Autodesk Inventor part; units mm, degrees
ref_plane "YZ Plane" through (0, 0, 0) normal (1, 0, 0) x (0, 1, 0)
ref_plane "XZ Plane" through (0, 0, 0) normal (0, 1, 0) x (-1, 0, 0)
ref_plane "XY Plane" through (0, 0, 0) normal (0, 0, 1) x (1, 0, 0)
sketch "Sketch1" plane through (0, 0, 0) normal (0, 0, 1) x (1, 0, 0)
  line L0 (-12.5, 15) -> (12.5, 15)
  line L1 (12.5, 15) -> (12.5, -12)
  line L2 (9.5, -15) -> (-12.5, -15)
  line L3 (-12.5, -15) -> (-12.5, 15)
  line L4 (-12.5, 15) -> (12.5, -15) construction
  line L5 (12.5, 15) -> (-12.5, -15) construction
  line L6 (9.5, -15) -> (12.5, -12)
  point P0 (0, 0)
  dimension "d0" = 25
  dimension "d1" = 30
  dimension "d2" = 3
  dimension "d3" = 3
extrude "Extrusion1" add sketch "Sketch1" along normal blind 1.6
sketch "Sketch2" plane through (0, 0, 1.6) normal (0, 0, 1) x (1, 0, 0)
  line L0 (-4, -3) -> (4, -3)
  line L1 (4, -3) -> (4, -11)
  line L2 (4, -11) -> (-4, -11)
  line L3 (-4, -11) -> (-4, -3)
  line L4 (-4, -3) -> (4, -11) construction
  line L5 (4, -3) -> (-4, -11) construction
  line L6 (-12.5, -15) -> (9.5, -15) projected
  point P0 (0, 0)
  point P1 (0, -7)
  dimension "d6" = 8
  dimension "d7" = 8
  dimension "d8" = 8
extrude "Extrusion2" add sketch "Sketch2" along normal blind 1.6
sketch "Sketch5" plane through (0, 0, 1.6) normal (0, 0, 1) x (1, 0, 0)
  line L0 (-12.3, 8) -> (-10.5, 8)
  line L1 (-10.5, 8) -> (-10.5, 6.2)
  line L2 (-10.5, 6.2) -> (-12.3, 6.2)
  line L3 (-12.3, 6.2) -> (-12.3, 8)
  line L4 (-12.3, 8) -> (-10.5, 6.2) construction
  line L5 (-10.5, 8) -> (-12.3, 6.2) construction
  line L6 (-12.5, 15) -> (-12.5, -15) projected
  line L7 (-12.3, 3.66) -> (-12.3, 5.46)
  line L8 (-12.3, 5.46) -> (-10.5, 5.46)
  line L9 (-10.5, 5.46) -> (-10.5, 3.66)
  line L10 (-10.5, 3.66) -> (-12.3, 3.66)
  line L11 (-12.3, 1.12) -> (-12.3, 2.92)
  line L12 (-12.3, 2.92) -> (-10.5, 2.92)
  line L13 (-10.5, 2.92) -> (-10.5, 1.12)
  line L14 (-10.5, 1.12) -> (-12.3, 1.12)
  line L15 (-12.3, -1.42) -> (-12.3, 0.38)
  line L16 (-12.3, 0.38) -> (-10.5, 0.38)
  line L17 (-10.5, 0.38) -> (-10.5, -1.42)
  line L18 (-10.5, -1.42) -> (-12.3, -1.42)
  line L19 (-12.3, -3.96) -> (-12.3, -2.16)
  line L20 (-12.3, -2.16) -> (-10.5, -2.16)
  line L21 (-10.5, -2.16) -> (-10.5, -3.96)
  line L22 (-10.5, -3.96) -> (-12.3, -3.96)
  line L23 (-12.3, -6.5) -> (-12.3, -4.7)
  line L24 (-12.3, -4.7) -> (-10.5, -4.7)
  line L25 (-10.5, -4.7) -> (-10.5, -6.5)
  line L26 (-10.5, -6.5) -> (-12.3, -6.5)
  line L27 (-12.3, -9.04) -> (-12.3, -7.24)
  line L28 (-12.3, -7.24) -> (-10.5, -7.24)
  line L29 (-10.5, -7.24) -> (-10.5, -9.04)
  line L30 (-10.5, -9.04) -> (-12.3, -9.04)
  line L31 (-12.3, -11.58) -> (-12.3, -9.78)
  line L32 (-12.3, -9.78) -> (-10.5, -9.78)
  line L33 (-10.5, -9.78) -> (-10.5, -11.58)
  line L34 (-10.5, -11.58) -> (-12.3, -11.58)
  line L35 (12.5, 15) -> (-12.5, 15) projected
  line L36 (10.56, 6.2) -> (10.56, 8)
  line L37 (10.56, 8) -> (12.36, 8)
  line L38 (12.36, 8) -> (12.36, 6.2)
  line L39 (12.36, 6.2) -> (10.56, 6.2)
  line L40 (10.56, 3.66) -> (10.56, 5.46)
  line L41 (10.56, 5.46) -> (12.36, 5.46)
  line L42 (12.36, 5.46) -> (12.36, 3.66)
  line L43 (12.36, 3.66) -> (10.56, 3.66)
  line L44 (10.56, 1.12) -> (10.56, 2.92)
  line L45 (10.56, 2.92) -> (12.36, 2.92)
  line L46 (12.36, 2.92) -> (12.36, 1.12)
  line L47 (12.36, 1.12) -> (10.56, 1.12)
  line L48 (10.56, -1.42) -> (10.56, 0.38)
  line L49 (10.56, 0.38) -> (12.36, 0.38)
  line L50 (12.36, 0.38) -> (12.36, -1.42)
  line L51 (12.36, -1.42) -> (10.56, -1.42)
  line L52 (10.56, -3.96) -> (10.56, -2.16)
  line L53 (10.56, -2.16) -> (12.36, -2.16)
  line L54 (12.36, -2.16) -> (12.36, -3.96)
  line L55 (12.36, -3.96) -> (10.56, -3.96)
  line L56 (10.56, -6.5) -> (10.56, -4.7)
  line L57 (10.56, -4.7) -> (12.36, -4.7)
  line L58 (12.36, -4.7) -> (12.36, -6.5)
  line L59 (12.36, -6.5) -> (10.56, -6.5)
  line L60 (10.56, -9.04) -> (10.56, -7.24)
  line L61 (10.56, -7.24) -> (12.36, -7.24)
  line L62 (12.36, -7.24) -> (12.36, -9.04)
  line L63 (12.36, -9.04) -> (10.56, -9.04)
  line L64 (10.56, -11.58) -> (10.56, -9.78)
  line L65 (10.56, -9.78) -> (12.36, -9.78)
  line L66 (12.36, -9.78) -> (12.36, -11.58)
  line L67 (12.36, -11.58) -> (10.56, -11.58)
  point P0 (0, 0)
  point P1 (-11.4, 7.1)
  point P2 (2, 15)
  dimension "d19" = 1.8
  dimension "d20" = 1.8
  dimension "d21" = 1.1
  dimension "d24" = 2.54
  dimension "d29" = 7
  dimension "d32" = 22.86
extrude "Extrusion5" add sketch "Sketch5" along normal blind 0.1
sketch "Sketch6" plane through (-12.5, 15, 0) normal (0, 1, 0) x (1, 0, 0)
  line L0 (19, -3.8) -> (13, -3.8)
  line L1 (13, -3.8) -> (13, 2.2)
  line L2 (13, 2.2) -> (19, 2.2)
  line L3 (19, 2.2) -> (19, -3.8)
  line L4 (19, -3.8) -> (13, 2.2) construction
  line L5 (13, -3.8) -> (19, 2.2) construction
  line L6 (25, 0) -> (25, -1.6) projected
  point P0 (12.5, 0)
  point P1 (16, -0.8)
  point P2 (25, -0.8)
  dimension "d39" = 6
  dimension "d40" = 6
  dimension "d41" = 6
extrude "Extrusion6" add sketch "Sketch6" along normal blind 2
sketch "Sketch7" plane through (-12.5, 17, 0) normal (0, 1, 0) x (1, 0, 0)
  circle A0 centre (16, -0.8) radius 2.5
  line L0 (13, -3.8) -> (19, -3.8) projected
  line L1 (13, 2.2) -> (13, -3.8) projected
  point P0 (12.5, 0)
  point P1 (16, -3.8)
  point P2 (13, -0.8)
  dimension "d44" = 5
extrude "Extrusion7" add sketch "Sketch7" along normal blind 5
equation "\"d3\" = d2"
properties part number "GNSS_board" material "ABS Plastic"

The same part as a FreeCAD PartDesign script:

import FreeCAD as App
import Part
import Sketcher

V = App.Vector
Q = App.Units.Quantity


def add_polygon(sketch, points):
    """Adds a closed chain of lines whose ends are joined by coincident constraints."""
    first, n = sketch.GeometryCount, len(points)
    for a, b in zip(points, points[1:] + points[:1]):
        sketch.addGeometry(Part.LineSegment(App.Vector(*a, 0), App.Vector(*b, 0)), False)
    for i in range(n):
        sketch.addConstraint(Sketcher.Constraint("Coincident", first + i, 2, first + (i + 1) % n, 1))

doc = App.newDocument("Part")
body = doc.addObject("PartDesign::Body", "Body")

# Sketch on XY plane
sketch1 = body.newObject("Sketcher::SketchObject", "Sketch")
sketch1.AttachmentSupport = (doc.getObject("XY_Plane"), [""])
sketch1.MapMode = "FlatFace"
add_polygon(sketch1, [(12.5, 15), (-12.5, 15), (-12.5, -15), (9.5, -15), (12.5, -12)])  # lines 0-4
sketch1.addConstraint(Sketcher.Constraint("Horizontal", 0))
sketch1.addConstraint(Sketcher.Constraint("Vertical", 1))
sketch1.addConstraint(Sketcher.Constraint("Horizontal", 2))
sketch1.addConstraint(Sketcher.Constraint("Vertical", 4))
sketch1.addConstraint(Sketcher.Constraint("Symmetric", 1, 2, 4, 2, -1, 1))
sketch1.addConstraint(Sketcher.Constraint("DistanceX", 0, 2, 0, 1, Q("25 mm")))
sketch1.addConstraint(Sketcher.Constraint("DistanceY", 1, 2, 1, 1, Q("30 mm")))
sketch1.addConstraint(Sketcher.Constraint("DistanceX", 2, 2, 3, 2, Q("3 mm")))
sketch1.addConstraint(Sketcher.Constraint("DistanceY", 2, 2, 3, 2, Q("3 mm")))
pad1 = body.newObject("PartDesign::Pad", "Pad")
pad1.Profile = sketch1
pad1.Length = 1.6

# Sketch on XY plane
sketch2 = body.newObject("Sketcher::SketchObject", "Sketch001")
sketch2.AttachmentSupport = (doc.getObject("XY_Plane"), [""])
sketch2.MapMode = "FlatFace"
sketch2.AttachmentOffset = App.Placement(V(0, 0, 1.6), App.Rotation())
add_polygon(sketch2, [(4, -3), (-4, -3), (-4, -11), (4, -11)])  # lines 0-3
sketch2.addConstraint(Sketcher.Constraint("Horizontal", 0))
sketch2.addConstraint(Sketcher.Constraint("Vertical", 1))
sketch2.addConstraint(Sketcher.Constraint("Horizontal", 2))
sketch2.addConstraint(Sketcher.Constraint("Vertical", 3))
sketch2.addConstraint(Sketcher.Constraint("Equal", 2, 1))
sketch2.addConstraint(Sketcher.Constraint("DistanceX", 0, 2, 0, 1, Q("8 mm")))
sketch2.addConstraint(Sketcher.Constraint("DistanceX", 0, 2, -1, 1, Q("4 mm")))
sketch2.addConstraint(Sketcher.Constraint("DistanceY", 0, 2, -1, 1, Q("3 mm")))
pad2 = body.newObject("PartDesign::Pad", "Pad001")
pad2.Profile = sketch2
pad2.Length = 1.6

# Sketch on XY plane
sketch3 = body.newObject("Sketcher::SketchObject", "Sketch002")
sketch3.AttachmentSupport = (doc.getObject("XY_Plane"), [""])
sketch3.MapMode = "FlatFace"
sketch3.AttachmentOffset = App.Placement(V(0, 0, 1.6), App.Rotation())
add_polygon(sketch3, [(-10.5, 8), (-12.3, 8), (-12.3, 6.2), (-10.5, 6.2)])  # lines 0-3
add_polygon(sketch3, [(-12.3, 5.5), (-12.3, 3.7), (-10.5, 3.7), (-10.5, 5.5)])  # lines 4-7
add_polygon(sketch3, [(-12.3, 2.9), (-12.3, 1.1), (-10.5, 1.1), (-10.5, 2.9)])  # lines 8-11
add_polygon(sketch3, [(-12.3, 0.4), (-12.3, -1.4), (-10.5, -1.4), (-10.5, 0.4)])  # lines 12-15
add_polygon(sketch3, [(-12.3, -2.2), (-12.3, -4), (-10.5, -4), (-10.5, -2.2)])  # lines 16-19
add_polygon(sketch3, [(-12.3, -4.7), (-12.3, -6.5), (-10.5, -6.5), (-10.5, -4.7)])  # lines 20-23
add_polygon(sketch3, [(-12.3, -7.2), (-12.3, -9), (-10.5, -9), (-10.5, -7.2)])  # lines 24-27
add_polygon(sketch3, [(-12.3, -9.8), (-12.3, -11.6), (-10.5, -11.6), (-10.5, -9.8)])  # lines 28-31
add_polygon(sketch3, [(10.6, 8), (10.6, 6.2), (12.4, 6.2), (12.4, 8)])  # lines 32-35
add_polygon(sketch3, [(10.6, 5.5), (10.6, 3.7), (12.4, 3.7), (12.4, 5.5)])  # lines 36-39
add_polygon(sketch3, [(10.6, 2.9), (10.6, 1.1), (12.4, 1.1), (12.4, 2.9)])  # lines 40-43
add_polygon(sketch3, [(10.6, 0.4), (10.6, -1.4), (12.4, -1.4), (12.4, 0.4)])  # lines 44-47
add_polygon(sketch3, [(10.6, -2.2), (10.6, -4), (12.4, -4), (12.4, -2.2)])  # lines 48-51
add_polygon(sketch3, [(10.6, -4.7), (10.6, -6.5), (12.4, -6.5), (12.4, -4.7)])  # lines 52-55
add_polygon(sketch3, [(10.6, -7.2), (10.6, -9), (12.4, -9), (12.4, -7.2)])  # lines 56-59
add_polygon(sketch3, [(10.6, -9.8), (10.6, -11.6), (12.4, -11.6), (12.4, -9.8)])  # lines 60-63
sketch3.addConstraint(Sketcher.Constraint("Horizontal", 0))
sketch3.addConstraint(Sketcher.Constraint("Vertical", 1))
sketch3.addConstraint(Sketcher.Constraint("Horizontal", 2))
sketch3.addConstraint(Sketcher.Constraint("Vertical", 3))
sketch3.addConstraint(Sketcher.Constraint("Vertical", 4))
sketch3.addConstraint(Sketcher.Constraint("Horizontal", 5))
sketch3.addConstraint(Sketcher.Constraint("Vertical", 6))
sketch3.addConstraint(Sketcher.Constraint("Horizontal", 7))
sketch3.addConstraint(Sketcher.Constraint("Vertical", 8))
sketch3.addConstraint(Sketcher.Constraint("Horizontal", 9))
sketch3.addConstraint(Sketcher.Constraint("Vertical", 10))
sketch3.addConstraint(Sketcher.Constraint("Horizontal", 11))
sketch3.addConstraint(Sketcher.Constraint("Vertical", 12))
sketch3.addConstraint(Sketcher.Constraint("Horizontal", 13))
sketch3.addConstraint(Sketcher.Constraint("Vertical", 14))
sketch3.addConstraint(Sketcher.Constraint("Horizontal", 15))
sketch3.addConstraint(Sketcher.Constraint("Vertical", 16))
sketch3.addConstraint(Sketcher.Constraint("Horizontal", 17))
sketch3.addConstraint(Sketcher.Constraint("Vertical", 18))
sketch3.addConstraint(Sketcher.Constraint("Horizontal", 19))
sketch3.addConstraint(Sketcher.Constraint("Vertical", 20))
sketch3.addConstraint(Sketcher.Constraint("Horizontal", 21))
sketch3.addConstraint(Sketcher.Constraint("Vertical", 22))
sketch3.addConstraint(Sketcher.Constraint("Horizontal", 23))
sketch3.addConstraint(Sketcher.Constraint("Vertical", 24))
sketch3.addConstraint(Sketcher.Constraint("Horizontal", 25))
sketch3.addConstraint(Sketcher.Constraint("Vertical", 26))
sketch3.addConstraint(Sketcher.Constraint("Horizontal", 27))
sketch3.addConstraint(Sketcher.Constraint("Vertical", 28))
sketch3.addConstraint(Sketcher.Constraint("Horizontal", 29))
sketch3.addConstraint(Sketcher.Constraint("Vertical", 30))
sketch3.addConstraint(Sketcher.Constraint("Horizontal", 31))
sketch3.addConstraint(Sketcher.Constraint("Vertical", 32))
sketch3.addConstraint(Sketcher.Constraint("Horizontal", 33))
sketch3.addConstraint(Sketcher.Constraint("Vertical", 34))
sketch3.addConstraint(Sketcher.Constraint("Horizontal", 35))
sketch3.addConstraint(Sketcher.Constraint("Vertical", 36))
sketch3.addConstraint(Sketcher.Constraint("Horizontal", 37))
sketch3.addConstraint(Sketcher.Constraint("Vertical", 38))
sketch3.addConstraint(Sketcher.Constraint("Horizontal", 39))
sketch3.addConstraint(Sketcher.Constraint("Vertical", 40))
sketch3.addConstraint(Sketcher.Constraint("Horizontal", 41))
sketch3.addConstraint(Sketcher.Constraint("Vertical", 42))
sketch3.addConstraint(Sketcher.Constraint("Horizontal", 43))
sketch3.addConstraint(Sketcher.Constraint("Vertical", 44))
sketch3.addConstraint(Sketcher.Constraint("Horizontal", 45))
sketch3.addConstraint(Sketcher.Constraint("Vertical", 46))
sketch3.addConstraint(Sketcher.Constraint("Horizontal", 47))
sketch3.addConstraint(Sketcher.Constraint("Vertical", 48))
sketch3.addConstraint(Sketcher.Constraint("Horizontal", 49))
sketch3.addConstraint(Sketcher.Constraint("Vertical", 50))
sketch3.addConstraint(Sketcher.Constraint("Horizontal", 51))
sketch3.addConstraint(Sketcher.Constraint("Vertical", 52))
sketch3.addConstraint(Sketcher.Constraint("Horizontal", 53))
sketch3.addConstraint(Sketcher.Constraint("Vertical", 54))
sketch3.addConstraint(Sketcher.Constraint("Horizontal", 55))
sketch3.addConstraint(Sketcher.Constraint("Vertical", 56))
sketch3.addConstraint(Sketcher.Constraint("Horizontal", 57))
sketch3.addConstraint(Sketcher.Constraint("Vertical", 58))
sketch3.addConstraint(Sketcher.Constraint("Horizontal", 59))
sketch3.addConstraint(Sketcher.Constraint("Vertical", 60))
sketch3.addConstraint(Sketcher.Constraint("Horizontal", 61))
sketch3.addConstraint(Sketcher.Constraint("Vertical", 62))
sketch3.addConstraint(Sketcher.Constraint("Horizontal", 63))
sketch3.addConstraint(Sketcher.Constraint("Horizontal", 2, 2, 32, 2))
sketch3.addConstraint(Sketcher.Constraint("Horizontal", 3, 2, 34, 2))
sketch3.addConstraint(Sketcher.Constraint("Horizontal", 5, 2, 36, 2))
sketch3.addConstraint(Sketcher.Constraint("Horizontal", 7, 2, 38, 2))
sketch3.addConstraint(Sketcher.Constraint("Horizontal", 9, 2, 40, 2))
sketch3.addConstraint(Sketcher.Constraint("Horizontal", 11, 2, 42, 2))
sketch3.addConstraint(Sketcher.Constraint("Horizontal", 13, 2, 44, 2))
sketch3.addConstraint(Sketcher.Constraint("Horizontal", 15, 2, 46, 2))
sketch3.addConstraint(Sketcher.Constraint("Horizontal", 17, 2, 48, 2))
sketch3.addConstraint(Sketcher.Constraint("Horizontal", 19, 2, 50, 2))
sketch3.addConstraint(Sketcher.Constraint("Horizontal", 21, 2, 52, 2))
sketch3.addConstraint(Sketcher.Constraint("Horizontal", 23, 2, 54, 2))
sketch3.addConstraint(Sketcher.Constraint("Horizontal", 25, 2, 56, 2))
sketch3.addConstraint(Sketcher.Constraint("Horizontal", 27, 2, 58, 2))
sketch3.addConstraint(Sketcher.Constraint("Horizontal", 29, 2, 60, 2))
sketch3.addConstraint(Sketcher.Constraint("Horizontal", 31, 2, 62, 2))
sketch3.addConstraint(Sketcher.Constraint("Vertical", 1, 2, 4, 2))
sketch3.addConstraint(Sketcher.Constraint("Vertical", 3, 2, 5, 2))
sketch3.addConstraint(Sketcher.Constraint("Vertical", 7, 2, 8, 2))
sketch3.addConstraint(Sketcher.Constraint("Vertical", 6, 2, 9, 2))
sketch3.addConstraint(Sketcher.Constraint("Vertical", 11, 2, 12, 2))
sketch3.addConstraint(Sketcher.Constraint("Vertical", 10, 2, 13, 2))
sketch3.addConstraint(Sketcher.Constraint("Vertical", 15, 2, 16, 2))
sketch3.addConstraint(Sketcher.Constraint("Vertical", 14, 2, 17, 2))
sketch3.addConstraint(Sketcher.Constraint("Vertical", 19, 2, 20, 2))
sketch3.addConstraint(Sketcher.Constraint("Vertical", 18, 2, 21, 2))
sketch3.addConstraint(Sketcher.Constraint("Vertical", 23, 2, 24, 2))
sketch3.addConstraint(Sketcher.Constraint("Vertical", 22, 2, 25, 2))
sketch3.addConstraint(Sketcher.Constraint("Vertical", 27, 2, 28, 2))
sketch3.addConstraint(Sketcher.Constraint("Vertical", 26, 2, 29, 2))
sketch3.addConstraint(Sketcher.Constraint("Vertical", 35, 2, 36, 2))
sketch3.addConstraint(Sketcher.Constraint("Vertical", 34, 2, 37, 2))
sketch3.addConstraint(Sketcher.Constraint("Vertical", 39, 2, 40, 2))
sketch3.addConstraint(Sketcher.Constraint("Vertical", 38, 2, 41, 2))
sketch3.addConstraint(Sketcher.Constraint("Vertical", 43, 2, 44, 2))
sketch3.addConstraint(Sketcher.Constraint("Vertical", 42, 2, 45, 2))
sketch3.addConstraint(Sketcher.Constraint("Vertical", 47, 2, 48, 2))
sketch3.addConstraint(Sketcher.Constraint("Vertical", 46, 2, 49, 2))
sketch3.addConstraint(Sketcher.Constraint("Vertical", 51, 2, 52, 2))
sketch3.addConstraint(Sketcher.Constraint("Vertical", 50, 2, 53, 2))
sketch3.addConstraint(Sketcher.Constraint("Vertical", 55, 2, 56, 2))
sketch3.addConstraint(Sketcher.Constraint("Vertical", 54, 2, 57, 2))
sketch3.addConstraint(Sketcher.Constraint("Vertical", 59, 2, 60, 2))
sketch3.addConstraint(Sketcher.Constraint("Vertical", 58, 2, 61, 2))
sketch3.addConstraint(Sketcher.Constraint("Equal", 31, 33))
sketch3.addConstraint(Sketcher.Constraint("Equal", 63, 1))
sketch3.addConstraint(Sketcher.Constraint("Equal", 3, 4))
sketch3.addConstraint(Sketcher.Constraint("Equal", 6, 8))
sketch3.addConstraint(Sketcher.Constraint("Equal", 10, 12))
sketch3.addConstraint(Sketcher.Constraint("Equal", 14, 16))
sketch3.addConstraint(Sketcher.Constraint("Equal", 18, 20))
sketch3.addConstraint(Sketcher.Constraint("Equal", 22, 24))
sketch3.addConstraint(Sketcher.Constraint("Equal", 26, 28))
sketch3.addConstraint(Sketcher.Constraint("DistanceX", 0, 2, 0, 1, Q("1.8 mm")))
sketch3.addConstraint(Sketcher.Constraint("DistanceY", -1, 1, 0, 2, Q("8 mm")))
sketch3.addConstraint(Sketcher.Constraint("DistanceX", 0, 2, -1, 1, Q("12.3 mm")))
sketch3.addConstraint(Sketcher.Constraint("DistanceY", 20, 2, -1, 1, Q("6.5 mm")))
sketch3.addConstraint(Sketcher.Constraint("DistanceY", -1, 1, 4, 2, Q("3.66 mm")))
sketch3.addConstraint(Sketcher.Constraint("DistanceY", -1, 1, 8, 2, Q("1.12 mm")))
sketch3.addConstraint(Sketcher.Constraint("DistanceY", 12, 2, -1, 1, Q("1.42 mm")))
sketch3.addConstraint(Sketcher.Constraint("DistanceY", 16, 2, -1, 1, Q("3.96 mm")))
sketch3.addConstraint(Sketcher.Constraint("DistanceY", 24, 2, -1, 1, Q("9.04 mm")))
sketch3.addConstraint(Sketcher.Constraint("DistanceY", 28, 2, -1, 1, Q("11.58 mm")))
sketch3.addConstraint(Sketcher.Constraint("DistanceX", -1, 1, 32, 2, Q("10.56 mm")))
pad3 = body.newObject("PartDesign::Pad", "Pad002")
pad3.Profile = sketch3
pad3.Length = 0.1

# Sketch on XZ plane
sketch4 = body.newObject("Sketcher::SketchObject", "Sketch003")
sketch4.AttachmentSupport = (doc.getObject("XZ_Plane"), [""])
sketch4.MapMode = "FlatFace"
sketch4.AttachmentOffset = App.Placement(V(0, 0, -15), App.Rotation())
add_polygon(sketch4, [(0, 4), (6, 4), (6, -2), (0, -2)])  # lines 0-3
sketch4.addConstraint(Sketcher.Constraint("Horizontal", 0))
sketch4.addConstraint(Sketcher.Constraint("Vertical", 1))
sketch4.addConstraint(Sketcher.Constraint("Horizontal", 2))
sketch4.addConstraint(Sketcher.Constraint("Vertical", 3))
sketch4.addConstraint(Sketcher.Constraint("Equal", 2, 1))
sketch4.addConstraint(Sketcher.Constraint("DistanceX", 0, 1, 0, 2, Q("6 mm")))
sketch4.addConstraint(Sketcher.Constraint("DistanceX", -1, 1, 0, 2, Q("6.5 mm")))
sketch4.addConstraint(Sketcher.Constraint("DistanceY", -1, 1, 0, 2, Q("3.8 mm")))
pad4 = body.newObject("PartDesign::Pad", "Pad003")
pad4.Profile = sketch4
pad4.Length = 2
pad4.Reversed = True

# Sketch on XZ plane
sketch5 = body.newObject("Sketcher::SketchObject", "Sketch004")
sketch5.AttachmentSupport = (doc.getObject("XZ_Plane"), [""])
sketch5.MapMode = "FlatFace"
sketch5.AttachmentOffset = App.Placement(V(0, 0, -17), App.Rotation())
sketch5.addGeometry(Part.Circle(V(3.5, 0.8, 0), V(0, 0, 1), 2.5), False)
sketch5.addConstraint(Sketcher.Constraint("Diameter", 0, Q("5 mm")))
sketch5.addConstraint(Sketcher.Constraint("DistanceX", -1, 1, 0, 3, Q("3.5 mm")))
sketch5.addConstraint(Sketcher.Constraint("DistanceY", -1, 1, 0, 3, Q("0.8 mm")))
pad5 = body.newObject("PartDesign::Pad", "Pad004")
pad5.Profile = sketch5
pad5.Length = 5
pad5.Reversed = True

doc.recompute()
